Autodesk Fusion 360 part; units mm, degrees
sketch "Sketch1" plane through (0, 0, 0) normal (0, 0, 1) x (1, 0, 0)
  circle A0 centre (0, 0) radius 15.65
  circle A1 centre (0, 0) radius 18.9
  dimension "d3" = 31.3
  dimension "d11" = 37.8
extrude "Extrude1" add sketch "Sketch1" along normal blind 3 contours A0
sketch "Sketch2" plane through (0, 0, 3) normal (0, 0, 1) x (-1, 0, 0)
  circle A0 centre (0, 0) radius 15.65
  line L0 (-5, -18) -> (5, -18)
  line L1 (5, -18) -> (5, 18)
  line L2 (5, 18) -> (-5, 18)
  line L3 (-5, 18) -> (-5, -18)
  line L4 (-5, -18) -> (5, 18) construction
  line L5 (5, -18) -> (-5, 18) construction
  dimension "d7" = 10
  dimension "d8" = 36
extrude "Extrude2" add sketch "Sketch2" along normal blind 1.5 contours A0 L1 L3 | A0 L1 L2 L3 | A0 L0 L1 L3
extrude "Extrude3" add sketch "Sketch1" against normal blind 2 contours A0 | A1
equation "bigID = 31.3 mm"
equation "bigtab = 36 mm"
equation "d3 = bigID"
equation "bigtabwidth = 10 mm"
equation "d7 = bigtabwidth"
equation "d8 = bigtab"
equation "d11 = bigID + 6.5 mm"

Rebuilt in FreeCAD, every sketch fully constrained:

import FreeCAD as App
import Part
import Sketcher

doc = App.newDocument("Part")
body = doc.addObject("PartDesign::Body", "Body")

# Sketch on XY plane
sketch1 = doc.addObject("Sketcher::SketchObject", "Sketch")
body.addObject(sketch1)
sketch1.AttachmentSupport = (doc.XY_Plane, [""])
sketch1.MapMode = "FlatFace"
sketch1.addGeometry(Part.Circle(App.Vector(0, 0, 0), App.Vector(0, 0, 1), 16), False)
sketch1.addConstraint([
    Sketcher.Constraint("Coincident", 0, 3, -1, 1),
    Sketcher.Constraint("Diameter", 0, 31.3),
])
pad1 = doc.addObject("PartDesign::Pad", "Pad")
body.addObject(pad1)
pad1.Profile = sketch1
pad1.Length = 3

# Sketch on XY plane
sketch2 = doc.addObject("Sketcher::SketchObject", "Sketch001")
body.addObject(sketch2)
sketch2.AttachmentSupport = (doc.XY_Plane, [""])
sketch2.MapMode = "FlatFace"
sketch2.AttachmentOffset = App.Placement(App.Vector(0, 0, 3), App.Rotation())
sketch2.addGeometry([
    Part.LineSegment(App.Vector(-5, -18, 0), App.Vector(5, -18, 0)),
    Part.LineSegment(App.Vector(5, -18, 0), App.Vector(5, 18, 0)),
    Part.LineSegment(App.Vector(5, 18, 0), App.Vector(-5, 18, 0)),
    Part.LineSegment(App.Vector(-5, 18, 0), App.Vector(-5, -18, 0)),
], False)
sketch2.addConstraint([
    Sketcher.Constraint("Coincident", 0, 2, 1, 1),
    Sketcher.Constraint("Coincident", 1, 2, 2, 1),
    Sketcher.Constraint("Coincident", 2, 2, 3, 1),
    Sketcher.Constraint("Coincident", 3, 2, 0, 1),
    Sketcher.Constraint("Horizontal", 0),
    Sketcher.Constraint("Vertical", 1),
    Sketcher.Constraint("Horizontal", 2),
    Sketcher.Constraint("Vertical", 3),
    Sketcher.Constraint("Symmetric", 0, 2, 2, 2, -1, 1),
    Sketcher.Constraint("DistanceX", 0, 1, 0, 2, 10.0),
    Sketcher.Constraint("DistanceY", 1, 1, 1, 2, 36.0),
])
pad2 = doc.addObject("PartDesign::Pad", "Pad001")
body.addObject(pad2)
pad2.Profile = sketch2
pad2.Length = 1.5

# Sketch on XY plane
sketch3 = doc.addObject("Sketcher::SketchObject", "Sketch002")
body.addObject(sketch3)
sketch3.AttachmentSupport = (doc.XY_Plane, [""])
sketch3.MapMode = "FlatFace"
sketch3.addGeometry(Part.Circle(App.Vector(0, 0, 0), App.Vector(0, 0, 1), 19), False)
sketch3.addConstraint([
    Sketcher.Constraint("Coincident", 0, 3, -1, 1),
    Sketcher.Constraint("Diameter", 0, 37.8),
])
pad3 = doc.addObject("PartDesign::Pad", "Pad002")
body.addObject(pad3)
pad3.Profile = sketch3
pad3.Length = 2
pad3.Reversed = True

doc.recompute()
